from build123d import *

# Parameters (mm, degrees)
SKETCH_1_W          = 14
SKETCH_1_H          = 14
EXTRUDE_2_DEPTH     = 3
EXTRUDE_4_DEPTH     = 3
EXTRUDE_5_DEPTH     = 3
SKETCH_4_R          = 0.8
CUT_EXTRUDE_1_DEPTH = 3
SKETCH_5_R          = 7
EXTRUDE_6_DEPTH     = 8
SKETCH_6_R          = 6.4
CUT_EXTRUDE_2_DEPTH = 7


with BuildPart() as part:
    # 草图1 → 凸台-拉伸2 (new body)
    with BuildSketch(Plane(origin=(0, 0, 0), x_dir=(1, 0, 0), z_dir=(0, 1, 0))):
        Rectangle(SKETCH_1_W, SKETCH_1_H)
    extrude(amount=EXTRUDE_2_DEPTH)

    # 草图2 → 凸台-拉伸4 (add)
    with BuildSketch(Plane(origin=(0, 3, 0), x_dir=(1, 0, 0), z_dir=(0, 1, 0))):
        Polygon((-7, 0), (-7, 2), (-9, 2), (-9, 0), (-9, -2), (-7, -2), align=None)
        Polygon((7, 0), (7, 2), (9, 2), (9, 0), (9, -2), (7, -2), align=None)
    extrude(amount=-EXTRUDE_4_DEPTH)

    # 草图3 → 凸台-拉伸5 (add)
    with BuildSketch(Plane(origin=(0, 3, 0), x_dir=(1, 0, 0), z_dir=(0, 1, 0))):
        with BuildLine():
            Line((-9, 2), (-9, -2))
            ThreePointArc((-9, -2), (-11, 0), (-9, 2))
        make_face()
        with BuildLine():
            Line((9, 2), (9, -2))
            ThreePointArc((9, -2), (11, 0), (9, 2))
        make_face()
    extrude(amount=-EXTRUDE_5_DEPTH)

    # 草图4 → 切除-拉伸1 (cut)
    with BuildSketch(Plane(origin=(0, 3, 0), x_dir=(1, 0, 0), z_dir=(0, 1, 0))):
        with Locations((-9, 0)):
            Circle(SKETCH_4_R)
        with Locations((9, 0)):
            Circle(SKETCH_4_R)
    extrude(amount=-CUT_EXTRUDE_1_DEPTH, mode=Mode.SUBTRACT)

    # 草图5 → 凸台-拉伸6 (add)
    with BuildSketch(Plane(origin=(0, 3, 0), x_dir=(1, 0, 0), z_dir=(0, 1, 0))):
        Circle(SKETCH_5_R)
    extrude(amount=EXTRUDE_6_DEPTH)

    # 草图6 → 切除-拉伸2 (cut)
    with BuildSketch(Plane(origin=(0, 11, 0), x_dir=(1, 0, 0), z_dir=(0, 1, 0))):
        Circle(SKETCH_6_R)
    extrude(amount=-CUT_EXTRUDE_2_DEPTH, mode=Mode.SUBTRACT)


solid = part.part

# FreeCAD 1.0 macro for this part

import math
import FreeCAD as App
import Part
import Sketcher

V = App.Vector

doc = App.newDocument("Part")
body = doc.addObject("PartDesign::Body", "Body")

sketch1 = body.newObject("Sketcher::SketchObject", "Sketch")
sketch1.AttachmentSupport = (doc.getObject("XZ_Plane"), [""])
sketch1.MapMode = "FlatFace"
sketch1.addGeometry([
    Part.LineSegment(V(-7, -7, 0), V(-7, 7, 0)),
    Part.LineSegment(V(-7, 7, 0), V(7, 7, 0)),
    Part.LineSegment(V(7, 7, 0), V(7, -7, 0)),
    Part.LineSegment(V(7, -7, 0), V(-7, -7, 0)),
], False)
sketch1.addConstraint([
    Sketcher.Constraint("Coincident", 0, 2, 1, 1),
    Sketcher.Constraint("Coincident", 1, 2, 2, 1),
    Sketcher.Constraint("Coincident", 2, 2, 3, 1),
    Sketcher.Constraint("Coincident", 3, 2, 0, 1),
    Sketcher.Constraint("Vertical", 0),
    Sketcher.Constraint("Horizontal", 1),
    Sketcher.Constraint("Vertical", 2),
    Sketcher.Constraint("Horizontal", 3),
    Sketcher.Constraint("Symmetric", 0, 2, 2, 2, -1, 1),
    Sketcher.Constraint("Equal", 3, 0),
    Sketcher.Constraint("DistanceX", 1, 1, 1, 2, 14.0),
])
pad1 = body.newObject("PartDesign::Pad", "Pad")
pad1.Profile = sketch1
pad1.Length = 3
pad1.Reversed = True

sketch2 = body.newObject("Sketcher::SketchObject", "Sketch001")
sketch2.AttachmentSupport = (doc.getObject("XZ_Plane"), [""])
sketch2.MapMode = "FlatFace"
sketch2.AttachmentOffset = App.Placement(V(0, 0, -3), App.Rotation())
sketch2.addGeometry([
    Part.LineSegment(V(-7, -2, 0), V(-9, -2, 0)),
    Part.LineSegment(V(-9, -2, 0), V(-9, 2, 0)),
    Part.LineSegment(V(-9, 2, 0), V(-7, 2, 0)),
    Part.LineSegment(V(-7, 2, 0), V(-7, -2, 0)),
    Part.LineSegment(V(7, -2, 0), V(7, 2, 0)),
    Part.LineSegment(V(7, 2, 0), V(9, 2, 0)),
    Part.LineSegment(V(9, 2, 0), V(9, -2, 0)),
    Part.LineSegment(V(9, -2, 0), V(7, -2, 0)),
], False)
sketch2.addConstraint([
    Sketcher.Constraint("Coincident", 0, 2, 1, 1),
    Sketcher.Constraint("Coincident", 1, 2, 2, 1),
    Sketcher.Constraint("Coincident", 2, 2, 3, 1),
    Sketcher.Constraint("Coincident", 3, 2, 0, 1),
    Sketcher.Constraint("Coincident", 4, 2, 5, 1),
    Sketcher.Constraint("Coincident", 5, 2, 6, 1),
    Sketcher.Constraint("Coincident", 6, 2, 7, 1),
    Sketcher.Constraint("Coincident", 7, 2, 4, 1),
    Sketcher.Constraint("Horizontal", 0),
    Sketcher.Constraint("Vertical", 1),
    Sketcher.Constraint("Horizontal", 2),
    Sketcher.Constraint("Vertical", 3),
    Sketcher.Constraint("Vertical", 4),
    Sketcher.Constraint("Horizontal", 5),
    Sketcher.Constraint("Vertical", 6),
    Sketcher.Constraint("Horizontal", 7),
    Sketcher.Constraint("Symmetric", 3, 2, 4, 2, -1, 1),
    Sketcher.Constraint("Symmetric", 1, 2, 6, 2, -1, 1),
    Sketcher.Constraint("Horizontal", 2, 2, 4, 2),
    Sketcher.Constraint("DistanceX", 0, 2, 0, 1, 2.0),
    Sketcher.Constraint("DistanceY", 1, 1, 1, 2, 4.0),
    Sketcher.Constraint("DistanceX", 0, 2, -1, 1, 9.0),
])
pad2 = body.newObject("PartDesign::Pad", "Pad001")
pad2.Profile = sketch2
pad2.Length = 3

sketch3 = body.newObject("Sketcher::SketchObject", "Sketch002")
sketch3.AttachmentSupport = (doc.getObject("XZ_Plane"), [""])
sketch3.MapMode = "FlatFace"
sketch3.AttachmentOffset = App.Placement(V(0, 0, -3), App.Rotation())
sketch3.addGeometry([
    Part.LineSegment(V(-9, 2, 0), V(-9, -2, 0)),
    Part.ArcOfCircle(Part.Circle(V(-9, 0, 0), V(0, 0, 1), 2), math.radians(90), math.radians(270)),
    Part.LineSegment(V(9, -2, 0), V(9, 2, 0)),
    Part.ArcOfCircle(Part.Circle(V(9, 0, 0), V(0, 0, 1), 2), math.radians(-90), math.radians(90)),
], False)
sketch3.addConstraint([
    Sketcher.Constraint("Coincident", 0, 1, 1, 1),
    Sketcher.Constraint("Coincident", 1, 2, 0, 2),
    Sketcher.Constraint("Coincident", 2, 1, 3, 1),
    Sketcher.Constraint("Coincident", 3, 2, 2, 2),
    Sketcher.Constraint("Vertical", 0),
    Sketcher.Constraint("Vertical", 2),
    Sketcher.Constraint("Equal", 1, 3),
    Sketcher.Constraint("Symmetric", 1, 3, 3, 3, -1, 1),
    Sketcher.Constraint("Symmetric", 1, 2, 2, 1, -2),
    Sketcher.Constraint("Vertical", 1, 3, 0, 1),
    Sketcher.Constraint("Radius", 1, 2.0),
    Sketcher.Constraint("DistanceX", 1, 3, -1, 1, 9.0),
])
pad3 = body.newObject("PartDesign::Pad", "Pad002")
pad3.Profile = sketch3
pad3.Length = 3

sketch4 = body.newObject("Sketcher::SketchObject", "Sketch003")
sketch4.AttachmentSupport = (doc.getObject("XZ_Plane"), [""])
sketch4.MapMode = "FlatFace"
sketch4.AttachmentOffset = App.Placement(V(0, 0, -3), App.Rotation())
sketch4.addGeometry([
    Part.Circle(V(-9, 0, 0), V(0, 0, 1), 0.8),
    Part.Circle(V(9, 0, 0), V(0, 0, 1), 0.8),
], False)
sketch4.addConstraint([
    Sketcher.Constraint("Equal", 0, 1),
    Sketcher.Constraint("Symmetric", 0, 3, 1, 3, -1, 1),
    Sketcher.Constraint("PointOnObject", 0, 3, -1),
    Sketcher.Constraint("Diameter", 0, 1.6),
    Sketcher.Constraint("DistanceX", 0, 3, -1, 1, 9.0),
])
pocket1 = body.newObject("PartDesign::Pocket", "Pocket")
pocket1.Profile = sketch4
pocket1.Length = 3
pocket1.Reversed = True

sketch5 = body.newObject("Sketcher::SketchObject", "Sketch004")
sketch5.AttachmentSupport = (doc.getObject("XZ_Plane"), [""])
sketch5.MapMode = "FlatFace"
sketch5.AttachmentOffset = App.Placement(V(0, 0, -3), App.Rotation())
sketch5.addGeometry(Part.Circle(V(0, 0, 0), V(0, 0, 1), 7), False)
sketch5.addConstraint([
    Sketcher.Constraint("Coincident", 0, 3, -1, 1),
    Sketcher.Constraint("Diameter", 0, 14.0),
])
pad4 = body.newObject("PartDesign::Pad", "Pad003")
pad4.Profile = sketch5
pad4.Length = 8
pad4.Reversed = True

sketch6 = body.newObject("Sketcher::SketchObject", "Sketch005")
sketch6.AttachmentSupport = (doc.getObject("XZ_Plane"), [""])
sketch6.MapMode = "FlatFace"
sketch6.AttachmentOffset = App.Placement(V(0, 0, -11), App.Rotation())
sketch6.addGeometry(Part.Circle(V(0, 0, 0), V(0, 0, 1), 6), False)
sketch6.addConstraint([
    Sketcher.Constraint("Coincident", 0, 3, -1, 1),
    Sketcher.Constraint("Diameter", 0, 12.8),
])
pocket2 = body.newObject("PartDesign::Pocket", "Pocket001")
pocket2.Profile = sketch6
pocket2.Length = 7
pocket2.Reversed = True

doc.recompute()
